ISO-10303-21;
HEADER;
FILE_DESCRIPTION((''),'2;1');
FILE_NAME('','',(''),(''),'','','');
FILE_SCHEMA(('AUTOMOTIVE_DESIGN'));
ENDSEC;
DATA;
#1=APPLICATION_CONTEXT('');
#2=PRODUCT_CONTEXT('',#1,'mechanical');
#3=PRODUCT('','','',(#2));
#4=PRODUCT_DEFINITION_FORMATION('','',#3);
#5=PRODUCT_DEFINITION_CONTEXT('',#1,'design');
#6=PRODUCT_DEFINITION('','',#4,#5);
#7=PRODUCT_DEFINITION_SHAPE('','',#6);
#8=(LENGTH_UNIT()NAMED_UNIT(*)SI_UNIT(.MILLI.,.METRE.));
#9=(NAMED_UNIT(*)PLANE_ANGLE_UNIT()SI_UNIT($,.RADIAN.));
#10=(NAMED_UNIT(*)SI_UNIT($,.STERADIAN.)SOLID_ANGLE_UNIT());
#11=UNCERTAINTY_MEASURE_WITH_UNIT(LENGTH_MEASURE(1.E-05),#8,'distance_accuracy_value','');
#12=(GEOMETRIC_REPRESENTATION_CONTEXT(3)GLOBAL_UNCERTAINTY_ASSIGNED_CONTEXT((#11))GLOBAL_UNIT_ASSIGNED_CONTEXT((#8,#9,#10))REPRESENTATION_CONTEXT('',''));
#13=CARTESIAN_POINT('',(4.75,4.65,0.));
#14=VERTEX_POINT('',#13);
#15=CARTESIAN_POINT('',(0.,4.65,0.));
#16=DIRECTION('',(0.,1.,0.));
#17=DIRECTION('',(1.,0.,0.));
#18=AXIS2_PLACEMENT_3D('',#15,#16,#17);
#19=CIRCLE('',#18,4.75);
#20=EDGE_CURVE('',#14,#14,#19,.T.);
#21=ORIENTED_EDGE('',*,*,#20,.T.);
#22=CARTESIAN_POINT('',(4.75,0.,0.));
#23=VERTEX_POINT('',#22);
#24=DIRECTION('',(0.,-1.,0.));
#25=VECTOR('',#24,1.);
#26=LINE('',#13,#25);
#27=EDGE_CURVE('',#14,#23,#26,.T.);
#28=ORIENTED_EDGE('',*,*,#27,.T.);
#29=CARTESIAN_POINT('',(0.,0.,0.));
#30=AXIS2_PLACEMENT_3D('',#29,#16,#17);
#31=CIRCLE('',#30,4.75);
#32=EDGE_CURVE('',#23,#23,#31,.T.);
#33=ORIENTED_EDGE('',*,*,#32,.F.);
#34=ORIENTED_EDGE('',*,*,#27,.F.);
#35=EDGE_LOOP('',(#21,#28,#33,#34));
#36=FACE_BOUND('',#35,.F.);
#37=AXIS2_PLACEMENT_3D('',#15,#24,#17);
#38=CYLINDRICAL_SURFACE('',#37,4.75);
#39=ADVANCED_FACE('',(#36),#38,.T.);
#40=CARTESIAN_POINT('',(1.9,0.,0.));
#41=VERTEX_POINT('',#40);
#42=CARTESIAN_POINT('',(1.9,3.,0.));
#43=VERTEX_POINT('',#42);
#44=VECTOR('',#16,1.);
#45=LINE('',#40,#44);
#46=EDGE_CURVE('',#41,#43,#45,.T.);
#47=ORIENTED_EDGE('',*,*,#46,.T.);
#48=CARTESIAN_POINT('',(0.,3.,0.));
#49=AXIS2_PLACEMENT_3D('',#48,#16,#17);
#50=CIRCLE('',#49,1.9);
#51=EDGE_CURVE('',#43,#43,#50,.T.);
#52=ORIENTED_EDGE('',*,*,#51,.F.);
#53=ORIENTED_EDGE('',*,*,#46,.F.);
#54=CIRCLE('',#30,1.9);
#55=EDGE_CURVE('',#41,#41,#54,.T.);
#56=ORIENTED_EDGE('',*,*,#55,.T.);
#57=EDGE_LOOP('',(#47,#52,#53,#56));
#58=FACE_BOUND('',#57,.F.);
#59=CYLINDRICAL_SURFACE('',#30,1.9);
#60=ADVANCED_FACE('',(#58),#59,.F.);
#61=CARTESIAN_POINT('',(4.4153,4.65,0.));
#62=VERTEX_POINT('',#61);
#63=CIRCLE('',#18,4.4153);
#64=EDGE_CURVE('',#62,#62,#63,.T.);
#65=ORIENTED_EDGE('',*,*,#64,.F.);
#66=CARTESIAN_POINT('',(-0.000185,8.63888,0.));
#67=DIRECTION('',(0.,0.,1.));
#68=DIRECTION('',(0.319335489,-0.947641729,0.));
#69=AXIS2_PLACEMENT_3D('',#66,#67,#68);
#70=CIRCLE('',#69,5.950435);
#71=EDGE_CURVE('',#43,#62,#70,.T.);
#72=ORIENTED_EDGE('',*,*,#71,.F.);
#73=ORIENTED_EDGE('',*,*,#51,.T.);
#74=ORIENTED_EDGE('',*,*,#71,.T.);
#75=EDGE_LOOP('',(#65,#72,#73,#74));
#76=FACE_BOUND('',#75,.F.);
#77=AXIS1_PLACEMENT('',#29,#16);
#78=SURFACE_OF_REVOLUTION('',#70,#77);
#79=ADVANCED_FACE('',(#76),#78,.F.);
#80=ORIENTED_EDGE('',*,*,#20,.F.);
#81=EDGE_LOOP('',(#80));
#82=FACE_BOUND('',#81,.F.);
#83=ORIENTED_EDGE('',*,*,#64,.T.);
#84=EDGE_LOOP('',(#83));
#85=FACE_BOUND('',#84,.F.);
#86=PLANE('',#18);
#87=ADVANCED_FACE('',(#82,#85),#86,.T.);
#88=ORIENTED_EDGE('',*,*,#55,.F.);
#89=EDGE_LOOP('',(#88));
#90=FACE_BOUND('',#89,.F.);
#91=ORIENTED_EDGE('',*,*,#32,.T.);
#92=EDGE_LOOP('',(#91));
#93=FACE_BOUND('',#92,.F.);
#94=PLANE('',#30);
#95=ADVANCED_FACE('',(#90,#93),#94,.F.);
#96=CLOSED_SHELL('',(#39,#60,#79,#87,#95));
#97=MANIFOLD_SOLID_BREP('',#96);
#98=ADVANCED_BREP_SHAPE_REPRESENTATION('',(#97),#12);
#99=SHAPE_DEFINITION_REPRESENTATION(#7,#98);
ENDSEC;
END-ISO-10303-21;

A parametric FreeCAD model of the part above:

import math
import FreeCAD as App
import Part
import Sketcher

V = App.Vector
Q = App.Units.Quantity

doc = App.newDocument("Part")
body = doc.addObject("PartDesign::Body", "Body")

sketch1 = body.newObject("Sketcher::SketchObject", "Sketch")
sketch1.AttachmentSupport = (doc.getObject("XY_Plane"), [""])
sketch1.MapMode = "FlatFace"
sketch1.addGeometry(Part.LineSegment(V(1.9, 3, 0), V(1.9, 0, 0)), False)
sketch1.addGeometry(Part.LineSegment(V(1.9, 0, 0), V(4.75, 0, 0)), False)
sketch1.addGeometry(Part.LineSegment(V(4.75, 0, 0), V(4.75, 4.65, 0)), False)
sketch1.addGeometry(Part.LineSegment(V(4.75, 4.65, 0), V(4.42, 4.65, 0)), False)
sketch1.addGeometry(Part.ArcOfCircle(Part.Circle(V(0, 8.64, 0), V(0, 0, 1), 5.95), math.radians(-71), math.radians(-42)), False)
sketch1.addConstraint(Sketcher.Constraint("Coincident", 0, 2, 1, 1))
sketch1.addConstraint(Sketcher.Constraint("Coincident", 1, 2, 2, 1))
sketch1.addConstraint(Sketcher.Constraint("Coincident", 2, 2, 3, 1))
sketch1.addConstraint(Sketcher.Constraint("Coincident", 3, 2, 4, 2))
sketch1.addConstraint(Sketcher.Constraint("Coincident", 4, 1, 0, 1))
sketch1.addConstraint(Sketcher.Constraint("Vertical", 0))
sketch1.addConstraint(Sketcher.Constraint("Horizontal", 1))
sketch1.addConstraint(Sketcher.Constraint("Vertical", 2))
sketch1.addConstraint(Sketcher.Constraint("Horizontal", 3))
sketch1.addConstraint(Sketcher.Constraint("PointOnObject", 4, 3, -2))
sketch1.addConstraint(Sketcher.Constraint("PointOnObject", 0, 2, -1))
sketch1.addConstraint(Sketcher.Constraint("DistanceY", 0, 2, 0, 1, Q("3 mm")))
sketch1.addConstraint(Sketcher.Constraint("Radius", 4, Q("5.95 mm")))
sketch1.addConstraint(Sketcher.Constraint("DistanceY", 2, 1, 2, 2, Q("4.65 mm")))
sketch1.addConstraint(Sketcher.Constraint("DistanceX", -1, 1, 0, 2, Q("1.9 mm")))
sketch1.addConstraint(Sketcher.Constraint("DistanceX", -1, 1, 1, 2, Q("4.75 mm")))
revolution = body.newObject("PartDesign::Revolution", "Revolution")
revolution.Profile = sketch1
revolution.ReferenceAxis = (sketch1, ["V_Axis"])
revolution.Angle = 360

doc.recompute()
